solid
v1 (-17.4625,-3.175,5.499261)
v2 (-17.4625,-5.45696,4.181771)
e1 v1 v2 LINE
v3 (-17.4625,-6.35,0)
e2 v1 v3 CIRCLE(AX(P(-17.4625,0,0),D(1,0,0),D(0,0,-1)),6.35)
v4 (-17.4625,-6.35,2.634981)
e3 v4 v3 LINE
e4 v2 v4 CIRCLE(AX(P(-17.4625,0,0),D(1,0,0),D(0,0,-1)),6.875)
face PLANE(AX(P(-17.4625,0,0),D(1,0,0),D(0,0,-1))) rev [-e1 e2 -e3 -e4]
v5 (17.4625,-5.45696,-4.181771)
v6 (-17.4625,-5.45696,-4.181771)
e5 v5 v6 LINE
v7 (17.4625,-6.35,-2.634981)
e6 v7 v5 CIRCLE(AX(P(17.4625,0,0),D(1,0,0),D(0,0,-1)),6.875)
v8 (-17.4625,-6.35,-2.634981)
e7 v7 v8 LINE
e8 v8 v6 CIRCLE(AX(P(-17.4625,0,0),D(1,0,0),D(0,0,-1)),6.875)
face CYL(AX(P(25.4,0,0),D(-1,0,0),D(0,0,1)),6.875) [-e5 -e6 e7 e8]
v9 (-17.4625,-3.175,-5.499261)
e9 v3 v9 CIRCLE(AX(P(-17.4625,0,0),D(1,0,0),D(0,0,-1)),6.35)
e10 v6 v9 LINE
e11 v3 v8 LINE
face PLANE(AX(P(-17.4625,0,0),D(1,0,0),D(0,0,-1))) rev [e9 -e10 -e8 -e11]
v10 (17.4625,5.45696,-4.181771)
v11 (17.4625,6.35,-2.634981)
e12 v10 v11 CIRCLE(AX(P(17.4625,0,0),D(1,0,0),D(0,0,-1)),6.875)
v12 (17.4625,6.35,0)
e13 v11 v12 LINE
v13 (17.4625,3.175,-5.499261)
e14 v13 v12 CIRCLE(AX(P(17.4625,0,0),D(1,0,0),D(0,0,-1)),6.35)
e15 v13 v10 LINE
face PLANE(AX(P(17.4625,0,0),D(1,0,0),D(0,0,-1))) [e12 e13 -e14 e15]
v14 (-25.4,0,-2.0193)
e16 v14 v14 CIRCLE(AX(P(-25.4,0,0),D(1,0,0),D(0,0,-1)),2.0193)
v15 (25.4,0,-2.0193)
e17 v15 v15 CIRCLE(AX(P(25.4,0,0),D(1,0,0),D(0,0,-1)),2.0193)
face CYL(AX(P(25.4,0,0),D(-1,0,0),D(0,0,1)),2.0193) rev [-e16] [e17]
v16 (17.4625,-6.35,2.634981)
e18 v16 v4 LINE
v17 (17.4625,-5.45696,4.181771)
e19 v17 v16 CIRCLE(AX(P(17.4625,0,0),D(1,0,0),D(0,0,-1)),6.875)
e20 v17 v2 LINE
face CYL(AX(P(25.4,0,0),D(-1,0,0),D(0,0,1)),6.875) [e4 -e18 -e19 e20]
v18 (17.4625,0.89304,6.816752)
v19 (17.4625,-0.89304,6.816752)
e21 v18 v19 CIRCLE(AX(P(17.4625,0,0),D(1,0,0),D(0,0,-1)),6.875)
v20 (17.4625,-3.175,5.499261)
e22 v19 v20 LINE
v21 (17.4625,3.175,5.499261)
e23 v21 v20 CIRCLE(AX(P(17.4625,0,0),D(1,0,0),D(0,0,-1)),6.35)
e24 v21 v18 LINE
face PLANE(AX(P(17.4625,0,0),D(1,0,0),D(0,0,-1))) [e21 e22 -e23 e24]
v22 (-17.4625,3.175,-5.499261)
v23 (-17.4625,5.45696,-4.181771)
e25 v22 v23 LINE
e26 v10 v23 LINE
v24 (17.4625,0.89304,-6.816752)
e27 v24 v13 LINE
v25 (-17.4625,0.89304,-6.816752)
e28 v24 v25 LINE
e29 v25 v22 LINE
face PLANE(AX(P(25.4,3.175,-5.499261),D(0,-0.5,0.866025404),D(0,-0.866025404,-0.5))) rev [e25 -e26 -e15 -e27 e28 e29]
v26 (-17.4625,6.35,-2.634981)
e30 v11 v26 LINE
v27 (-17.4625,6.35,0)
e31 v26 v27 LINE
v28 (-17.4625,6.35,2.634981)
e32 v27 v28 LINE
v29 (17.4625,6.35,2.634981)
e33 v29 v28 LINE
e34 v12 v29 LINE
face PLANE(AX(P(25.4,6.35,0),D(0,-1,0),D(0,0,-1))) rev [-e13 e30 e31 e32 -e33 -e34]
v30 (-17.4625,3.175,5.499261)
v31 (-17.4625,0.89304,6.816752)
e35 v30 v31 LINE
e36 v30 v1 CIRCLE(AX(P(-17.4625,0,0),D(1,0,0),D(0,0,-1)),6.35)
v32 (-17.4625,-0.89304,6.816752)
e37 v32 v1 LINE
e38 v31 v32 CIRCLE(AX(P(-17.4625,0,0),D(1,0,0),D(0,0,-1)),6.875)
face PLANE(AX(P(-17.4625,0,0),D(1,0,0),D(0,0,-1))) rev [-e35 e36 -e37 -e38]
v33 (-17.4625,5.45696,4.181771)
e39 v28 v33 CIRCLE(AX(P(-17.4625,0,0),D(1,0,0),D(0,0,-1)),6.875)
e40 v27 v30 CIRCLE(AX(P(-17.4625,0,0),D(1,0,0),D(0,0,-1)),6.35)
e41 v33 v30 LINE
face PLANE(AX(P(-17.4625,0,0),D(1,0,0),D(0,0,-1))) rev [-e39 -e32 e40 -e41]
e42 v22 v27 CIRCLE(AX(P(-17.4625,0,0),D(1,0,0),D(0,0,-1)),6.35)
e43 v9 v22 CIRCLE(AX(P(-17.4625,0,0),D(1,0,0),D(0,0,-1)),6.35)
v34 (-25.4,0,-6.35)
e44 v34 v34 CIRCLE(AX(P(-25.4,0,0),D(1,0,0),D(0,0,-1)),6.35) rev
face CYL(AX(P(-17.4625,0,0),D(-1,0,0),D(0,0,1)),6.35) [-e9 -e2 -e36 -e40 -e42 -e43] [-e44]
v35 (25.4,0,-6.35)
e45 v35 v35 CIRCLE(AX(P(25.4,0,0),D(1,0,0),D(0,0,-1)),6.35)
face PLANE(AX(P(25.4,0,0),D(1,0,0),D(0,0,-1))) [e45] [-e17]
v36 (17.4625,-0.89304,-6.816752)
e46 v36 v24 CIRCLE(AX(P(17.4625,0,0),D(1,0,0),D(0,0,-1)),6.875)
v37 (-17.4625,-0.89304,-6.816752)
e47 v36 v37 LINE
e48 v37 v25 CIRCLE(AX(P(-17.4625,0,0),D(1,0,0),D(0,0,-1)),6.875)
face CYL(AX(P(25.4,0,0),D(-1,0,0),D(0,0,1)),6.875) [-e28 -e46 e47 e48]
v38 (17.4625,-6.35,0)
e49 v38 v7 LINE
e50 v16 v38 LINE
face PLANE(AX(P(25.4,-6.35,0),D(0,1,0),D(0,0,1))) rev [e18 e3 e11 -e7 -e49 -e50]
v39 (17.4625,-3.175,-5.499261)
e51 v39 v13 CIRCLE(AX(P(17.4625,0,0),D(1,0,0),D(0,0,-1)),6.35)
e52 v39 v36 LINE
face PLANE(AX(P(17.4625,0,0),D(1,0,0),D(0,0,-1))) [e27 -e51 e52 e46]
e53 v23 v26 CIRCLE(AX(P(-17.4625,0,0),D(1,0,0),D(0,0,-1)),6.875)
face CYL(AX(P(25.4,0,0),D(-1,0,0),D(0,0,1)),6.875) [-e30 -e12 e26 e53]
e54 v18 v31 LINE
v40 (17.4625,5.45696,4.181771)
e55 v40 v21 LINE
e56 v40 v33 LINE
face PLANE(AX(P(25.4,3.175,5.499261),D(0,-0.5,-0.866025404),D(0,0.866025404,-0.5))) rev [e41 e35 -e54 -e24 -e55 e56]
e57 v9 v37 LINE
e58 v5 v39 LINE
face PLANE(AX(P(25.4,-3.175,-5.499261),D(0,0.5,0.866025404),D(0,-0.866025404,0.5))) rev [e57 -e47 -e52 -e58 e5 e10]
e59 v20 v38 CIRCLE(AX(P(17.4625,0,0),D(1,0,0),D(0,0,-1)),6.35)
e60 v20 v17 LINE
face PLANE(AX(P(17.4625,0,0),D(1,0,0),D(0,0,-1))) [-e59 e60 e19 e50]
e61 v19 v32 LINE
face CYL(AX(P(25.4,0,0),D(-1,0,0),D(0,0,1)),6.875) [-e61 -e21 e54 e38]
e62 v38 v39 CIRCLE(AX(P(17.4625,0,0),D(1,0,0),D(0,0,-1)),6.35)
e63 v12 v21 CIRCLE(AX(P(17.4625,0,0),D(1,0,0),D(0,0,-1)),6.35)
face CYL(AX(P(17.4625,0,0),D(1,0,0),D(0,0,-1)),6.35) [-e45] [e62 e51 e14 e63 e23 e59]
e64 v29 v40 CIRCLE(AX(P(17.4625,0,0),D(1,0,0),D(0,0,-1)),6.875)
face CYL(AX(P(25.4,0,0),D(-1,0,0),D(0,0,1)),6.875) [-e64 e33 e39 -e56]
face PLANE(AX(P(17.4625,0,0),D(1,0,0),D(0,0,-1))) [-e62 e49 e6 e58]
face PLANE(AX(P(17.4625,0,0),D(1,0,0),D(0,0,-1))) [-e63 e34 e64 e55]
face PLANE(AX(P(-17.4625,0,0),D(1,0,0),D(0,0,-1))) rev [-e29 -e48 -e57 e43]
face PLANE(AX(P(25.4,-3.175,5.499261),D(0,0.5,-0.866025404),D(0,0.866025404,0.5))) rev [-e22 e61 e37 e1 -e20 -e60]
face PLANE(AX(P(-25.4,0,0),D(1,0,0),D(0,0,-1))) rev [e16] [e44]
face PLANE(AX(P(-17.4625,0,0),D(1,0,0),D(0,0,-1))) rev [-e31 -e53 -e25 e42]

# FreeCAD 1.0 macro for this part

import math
import FreeCAD as App
import Part
import Sketcher
Q = App.Units.Quantity

doc = App.newDocument("Part")
body = doc.addObject("PartDesign::Body", "Body")

# Sketch on YZ plane
sketch1 = body.newObject("Sketcher::SketchObject", "Sketch")
sketch1.AttachmentSupport = (doc.getObject("YZ_Plane"), [""])
sketch1.MapMode = "FlatFace"
sketch1.addGeometry(Part.ArcOfCircle(Part.Circle(App.Vector(0, 0, 0), App.Vector(0, 0, 1), 6.9), math.radians(-37.46), math.radians(-22.54)), False)
sketch1.addGeometry(Part.LineSegment(App.Vector(6.3, -2.6, 0), App.Vector(6.3, 2.6, 0)), False)
sketch1.addGeometry(Part.ArcOfCircle(Part.Circle(App.Vector(0, 0, 0), App.Vector(0, 0, 1), 6.9), math.radians(22.54), math.radians(37.46)), False)
sketch1.addGeometry(Part.LineSegment(App.Vector(5.5, 4.2, 0), App.Vector(0.9, 6.8, 0)), False)
sketch1.addGeometry(Part.ArcOfCircle(Part.Circle(App.Vector(0, 0, 0), App.Vector(0, 0, 1), 6.9), math.radians(82.54), math.radians(97.46)), False)
sketch1.addGeometry(Part.LineSegment(App.Vector(-0.9, 6.8, 0), App.Vector(-5.5, 4.2, 0)), False)
sketch1.addGeometry(Part.ArcOfCircle(Part.Circle(App.Vector(0, 0, 0), App.Vector(0, 0, 1), 6.9), math.radians(142.54), math.radians(157.46)), False)
sketch1.addGeometry(Part.LineSegment(App.Vector(-6.3, 2.6, 0), App.Vector(-6.3, -2.6, 0)), False)
sketch1.addGeometry(Part.ArcOfCircle(Part.Circle(App.Vector(0, 0, 0), App.Vector(0, 0, 1), 6.9), math.radians(-157.46), math.radians(-142.54)), False)
sketch1.addGeometry(Part.LineSegment(App.Vector(-5.5, -4.2, 0), App.Vector(-0.9, -6.8, 0)), False)
sketch1.addGeometry(Part.ArcOfCircle(Part.Circle(App.Vector(0, 0, 0), App.Vector(0, 0, 1), 6.9), math.radians(-97.46), math.radians(-90)), False)
sketch1.addGeometry(Part.ArcOfCircle(Part.Circle(App.Vector(0, 0, 0), App.Vector(0, 0, 1), 6.9), math.radians(-90), math.radians(-82.54)), False)
sketch1.addGeometry(Part.LineSegment(App.Vector(0.9, -6.8, 0), App.Vector(5.5, -4.2, 0)), False)
sketch1.addGeometry(Part.Circle(App.Vector(0, 0, 0), App.Vector(0, 0, 1), 2), False)
sketch1.addConstraint(Sketcher.Constraint("Coincident", 0, 2, 1, 1))
sketch1.addConstraint(Sketcher.Constraint("Coincident", 1, 2, 2, 1))
sketch1.addConstraint(Sketcher.Constraint("Coincident", 2, 2, 3, 1))
sketch1.addConstraint(Sketcher.Constraint("Coincident", 3, 2, 4, 1))
sketch1.addConstraint(Sketcher.Constraint("Coincident", 4, 2, 5, 1))
sketch1.addConstraint(Sketcher.Constraint("Coincident", 5, 2, 6, 1))
sketch1.addConstraint(Sketcher.Constraint("Coincident", 6, 2, 7, 1))
sketch1.addConstraint(Sketcher.Constraint("Coincident", 7, 2, 8, 1))
sketch1.addConstraint(Sketcher.Constraint("Coincident", 8, 2, 9, 1))
sketch1.addConstraint(Sketcher.Constraint("Coincident", 9, 2, 10, 1))
sketch1.addConstraint(Sketcher.Constraint("Tangent", 10, 2, 11, 1))
sketch1.addConstraint(Sketcher.Constraint("Coincident", 11, 2, 12, 1))
sketch1.addConstraint(Sketcher.Constraint("Coincident", 12, 2, 0, 1))
sketch1.addConstraint(Sketcher.Constraint("Vertical", 1))
sketch1.addConstraint(Sketcher.Constraint("Vertical", 7))
sketch1.addConstraint(Sketcher.Constraint("Coincident", 0, 3, -1, 1))
sketch1.addConstraint(Sketcher.Constraint("Coincident", 2, 3, -1, 1))
sketch1.addConstraint(Sketcher.Constraint("Coincident", 4, 3, -1, 1))
sketch1.addConstraint(Sketcher.Constraint("Coincident", 6, 3, -1, 1))
sketch1.addConstraint(Sketcher.Constraint("Coincident", 8, 3, -1, 1))
sketch1.addConstraint(Sketcher.Constraint("Coincident", 10, 3, -1, 1))
sketch1.addConstraint(Sketcher.Constraint("Coincident", 13, 3, -1, 1))
sketch1.addConstraint(Sketcher.Constraint("Equal", 0, 2))
sketch1.addConstraint(Sketcher.Constraint("Equal", 2, 4))
sketch1.addConstraint(Sketcher.Constraint("Equal", 4, 6))
sketch1.addConstraint(Sketcher.Constraint("Equal", 6, 8))
sketch1.addConstraint(Sketcher.Constraint("Equal", 8, 10))
sketch1.addConstraint(Sketcher.Constraint("Equal", 10, 11))
sketch1.addConstraint(Sketcher.Constraint("PointOnObject", 10, 2, -2))
sketch1.addConstraint(Sketcher.Constraint("Parallel", 3, 9))
sketch1.addConstraint(Sketcher.Constraint("Parallel", 5, 12))
sketch1.addConstraint(Sketcher.Constraint("Horizontal", 3, 2, 4, 2))
sketch1.addConstraint(Sketcher.Constraint("Horizontal", 2, 2, 5, 2))
sketch1.addConstraint(Sketcher.Constraint("Horizontal", 1, 2, 6, 2))
sketch1.addConstraint(Sketcher.Constraint("Horizontal", 9, 2, 11, 2))
sketch1.addConstraint(Sketcher.Constraint("Vertical", 5, 2, 8, 2))
sketch1.addConstraint(Sketcher.Constraint("Diameter", 13, Q("0.159 in")))
sketch1.addConstraint(Sketcher.Constraint("Angle", 3, Q("150 deg")))
sketch1.addConstraint(Sketcher.Constraint("DistanceX", -1, 1, 0, 2, Q("0.25 in")))
sketch1.addConstraint(Sketcher.Constraint("Radius", 0, Q("6.875 mm")))
sketch1.addConstraint(Sketcher.Constraint("Distance", 3, Q("5.269962 mm")))
pad1 = body.newObject("PartDesign::Pad", "Pad")
pad1.Profile = sketch1
pad1.Length = Q("2 in")
pad1.Midplane = True

# Sketch on YZ plane
sketch2 = body.newObject("Sketcher::SketchObject", "Sketch001")
sketch2.AttachmentSupport = (doc.getObject("YZ_Plane"), [""])
sketch2.MapMode = "FlatFace"
sketch2.AttachmentOffset = App.Placement(App.Vector(0, 0, 1 * 25.4), App.Rotation())
sketch2.addGeometry(Part.Circle(App.Vector(0, 0, 0), App.Vector(0, 0, 1), 9), False)
sketch2.addGeometry(Part.Circle(App.Vector(0, 0, 0), App.Vector(0, 0, 1), 6), False)
sketch2.addConstraint(Sketcher.Constraint("Coincident", 0, 3, -1, 1))
sketch2.addConstraint(Sketcher.Constraint("Coincident", 1, 3, -1, 1))
sketch2.addConstraint(Sketcher.Constraint("Diameter", 0, Q("0.7 in")))
sketch2.addConstraint(Sketcher.Constraint("Diameter", 1, Q("0.5 in")))
pocket1 = body.newObject("PartDesign::Pocket", "Pocket")
pocket1.Profile = sketch2
pocket1.Length = Q("0.3125 in")
doc.recompute()

mirrored = body.newObject("PartDesign::Mirrored", "Mirrored")
mirrored.Originals = [pocket1]
mirrored.MirrorPlane = (doc.getObject("YZ_Plane"), [""])
body.Tip = mirrored

doc.recompute()
